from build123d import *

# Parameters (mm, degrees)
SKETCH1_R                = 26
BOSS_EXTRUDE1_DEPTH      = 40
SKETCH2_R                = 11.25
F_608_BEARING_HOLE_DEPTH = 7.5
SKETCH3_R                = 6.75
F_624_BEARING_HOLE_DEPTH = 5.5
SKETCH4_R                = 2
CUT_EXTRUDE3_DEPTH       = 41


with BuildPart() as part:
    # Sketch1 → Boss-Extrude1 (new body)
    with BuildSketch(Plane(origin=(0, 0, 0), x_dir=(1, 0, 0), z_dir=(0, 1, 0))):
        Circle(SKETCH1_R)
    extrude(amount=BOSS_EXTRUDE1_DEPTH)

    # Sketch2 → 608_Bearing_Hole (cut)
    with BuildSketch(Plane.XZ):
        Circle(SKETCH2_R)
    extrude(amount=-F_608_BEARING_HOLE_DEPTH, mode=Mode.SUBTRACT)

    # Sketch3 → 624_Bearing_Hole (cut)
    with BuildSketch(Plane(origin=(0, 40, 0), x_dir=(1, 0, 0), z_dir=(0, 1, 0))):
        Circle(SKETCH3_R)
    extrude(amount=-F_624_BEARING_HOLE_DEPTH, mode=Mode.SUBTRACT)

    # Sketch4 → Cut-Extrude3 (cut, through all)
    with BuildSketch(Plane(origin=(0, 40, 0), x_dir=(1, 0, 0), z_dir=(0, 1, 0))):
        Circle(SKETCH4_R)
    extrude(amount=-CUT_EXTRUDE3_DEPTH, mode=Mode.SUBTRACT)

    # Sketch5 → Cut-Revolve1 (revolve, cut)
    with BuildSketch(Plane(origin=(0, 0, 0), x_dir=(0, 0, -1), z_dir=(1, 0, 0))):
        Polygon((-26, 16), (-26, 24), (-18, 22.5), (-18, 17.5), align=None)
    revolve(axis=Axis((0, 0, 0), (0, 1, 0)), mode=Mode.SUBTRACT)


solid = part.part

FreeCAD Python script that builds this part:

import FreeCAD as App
import Part
import Sketcher


def add_polygon(sketch, points):
    """Adds a closed chain of lines whose ends are joined by coincident constraints."""
    first, n = sketch.GeometryCount, len(points)
    for a, b in zip(points, points[1:] + points[:1]):
        sketch.addGeometry(Part.LineSegment(App.Vector(*a, 0), App.Vector(*b, 0)), False)
    for i in range(n):
        sketch.addConstraint(Sketcher.Constraint("Coincident", first + i, 2, first + (i + 1) % n, 1))

doc = App.newDocument("Part")
body = doc.addObject("PartDesign::Body", "Body")

sketch1 = body.newObject("Sketcher::SketchObject", "Sketch")
sketch1.AttachmentSupport = (doc.getObject("XZ_Plane"), [""])
sketch1.MapMode = "FlatFace"
sketch1.addGeometry(Part.Circle(App.Vector(0, 0, 0), App.Vector(0, 0, 1), 26), False)
sketch1.addConstraint(Sketcher.Constraint("Coincident", 0, 3, -1, 1))
sketch1.addConstraint(Sketcher.Constraint("Diameter", 0, 52.0))
pad1 = body.newObject("PartDesign::Pad", "Pad")
pad1.Profile = sketch1
pad1.Length = 40
pad1.Reversed = True

sketch2 = body.newObject("Sketcher::SketchObject", "Sketch001")
sketch2.AttachmentSupport = (doc.getObject("XZ_Plane"), [""])
sketch2.MapMode = "FlatFace"
sketch2.addGeometry(Part.Circle(App.Vector(0, 0, 0), App.Vector(0, 0, 1), 11), False)
sketch2.addConstraint(Sketcher.Constraint("Coincident", 0, 3, -1, 1))
sketch2.addConstraint(Sketcher.Constraint("Diameter", 0, 22.5))
pocket1 = body.newObject("PartDesign::Pocket", "Pocket")
pocket1.Profile = sketch2
pocket1.Length = 7.5

sketch3 = body.newObject("Sketcher::SketchObject", "Sketch002")
sketch3.AttachmentSupport = (doc.getObject("XZ_Plane"), [""])
sketch3.MapMode = "FlatFace"
sketch3.AttachmentOffset = App.Placement(App.Vector(0, 0, -40), App.Rotation())
sketch3.addGeometry(Part.Circle(App.Vector(0, 0, 0), App.Vector(0, 0, 1), 7), False)
sketch3.addConstraint(Sketcher.Constraint("Coincident", 0, 3, -1, 1))
sketch3.addConstraint(Sketcher.Constraint("Diameter", 0, 13.5))
pocket2 = body.newObject("PartDesign::Pocket", "Pocket001")
pocket2.Profile = sketch3
pocket2.Length = 5.5
pocket2.Reversed = True

sketch4 = body.newObject("Sketcher::SketchObject", "Sketch003")
sketch4.AttachmentSupport = (doc.getObject("XZ_Plane"), [""])
sketch4.MapMode = "FlatFace"
sketch4.AttachmentOffset = App.Placement(App.Vector(0, 0, -40), App.Rotation())
sketch4.addGeometry(Part.Circle(App.Vector(0, 0, 0), App.Vector(0, 0, 1), 2), False)
sketch4.addConstraint(Sketcher.Constraint("Coincident", 0, 3, -1, 1))
sketch4.addConstraint(Sketcher.Constraint("Diameter", 0, 4.0))
pocket3 = body.newObject("PartDesign::Pocket", "Pocket002")
pocket3.Profile = sketch4
pocket3.Type = "ThroughAll"
pocket3.Reversed = True

sketch5 = body.newObject("Sketcher::SketchObject", "Sketch004")
sketch5.AttachmentSupport = (doc.getObject("YZ_Plane"), [""])
sketch5.MapMode = "FlatFace"
add_polygon(sketch5, [(24, 26), (16, 26), (18, 18), (22, 18)])
sketch5.addConstraint(Sketcher.Constraint("Horizontal", 0))
sketch5.addConstraint(Sketcher.Constraint("Horizontal", 2))
sketch5.addConstraint(Sketcher.Constraint("Equal", 1, 3))
sketch5.addConstraint(Sketcher.Constraint("DistanceX", 0, 2, 0, 1, 8.0))
sketch5.addConstraint(Sketcher.Constraint("DistanceX", 2, 1, 2, 2, 5.0))
sketch5.addConstraint(Sketcher.Constraint("DistanceX", -1, 1, 0, 2, 16.0))
sketch5.addConstraint(Sketcher.Constraint("DistanceY", -1, 1, 0, 2, 26.0))
sketch5.addConstraint(Sketcher.Constraint("DistanceY", -1, 1, 1, 2, 18.0))
groove = body.newObject("PartDesign::Groove", "Groove")
groove.Profile = sketch5
groove.ReferenceAxis = (sketch5, ["H_Axis"])
groove.Angle = 360

doc.recompute()
